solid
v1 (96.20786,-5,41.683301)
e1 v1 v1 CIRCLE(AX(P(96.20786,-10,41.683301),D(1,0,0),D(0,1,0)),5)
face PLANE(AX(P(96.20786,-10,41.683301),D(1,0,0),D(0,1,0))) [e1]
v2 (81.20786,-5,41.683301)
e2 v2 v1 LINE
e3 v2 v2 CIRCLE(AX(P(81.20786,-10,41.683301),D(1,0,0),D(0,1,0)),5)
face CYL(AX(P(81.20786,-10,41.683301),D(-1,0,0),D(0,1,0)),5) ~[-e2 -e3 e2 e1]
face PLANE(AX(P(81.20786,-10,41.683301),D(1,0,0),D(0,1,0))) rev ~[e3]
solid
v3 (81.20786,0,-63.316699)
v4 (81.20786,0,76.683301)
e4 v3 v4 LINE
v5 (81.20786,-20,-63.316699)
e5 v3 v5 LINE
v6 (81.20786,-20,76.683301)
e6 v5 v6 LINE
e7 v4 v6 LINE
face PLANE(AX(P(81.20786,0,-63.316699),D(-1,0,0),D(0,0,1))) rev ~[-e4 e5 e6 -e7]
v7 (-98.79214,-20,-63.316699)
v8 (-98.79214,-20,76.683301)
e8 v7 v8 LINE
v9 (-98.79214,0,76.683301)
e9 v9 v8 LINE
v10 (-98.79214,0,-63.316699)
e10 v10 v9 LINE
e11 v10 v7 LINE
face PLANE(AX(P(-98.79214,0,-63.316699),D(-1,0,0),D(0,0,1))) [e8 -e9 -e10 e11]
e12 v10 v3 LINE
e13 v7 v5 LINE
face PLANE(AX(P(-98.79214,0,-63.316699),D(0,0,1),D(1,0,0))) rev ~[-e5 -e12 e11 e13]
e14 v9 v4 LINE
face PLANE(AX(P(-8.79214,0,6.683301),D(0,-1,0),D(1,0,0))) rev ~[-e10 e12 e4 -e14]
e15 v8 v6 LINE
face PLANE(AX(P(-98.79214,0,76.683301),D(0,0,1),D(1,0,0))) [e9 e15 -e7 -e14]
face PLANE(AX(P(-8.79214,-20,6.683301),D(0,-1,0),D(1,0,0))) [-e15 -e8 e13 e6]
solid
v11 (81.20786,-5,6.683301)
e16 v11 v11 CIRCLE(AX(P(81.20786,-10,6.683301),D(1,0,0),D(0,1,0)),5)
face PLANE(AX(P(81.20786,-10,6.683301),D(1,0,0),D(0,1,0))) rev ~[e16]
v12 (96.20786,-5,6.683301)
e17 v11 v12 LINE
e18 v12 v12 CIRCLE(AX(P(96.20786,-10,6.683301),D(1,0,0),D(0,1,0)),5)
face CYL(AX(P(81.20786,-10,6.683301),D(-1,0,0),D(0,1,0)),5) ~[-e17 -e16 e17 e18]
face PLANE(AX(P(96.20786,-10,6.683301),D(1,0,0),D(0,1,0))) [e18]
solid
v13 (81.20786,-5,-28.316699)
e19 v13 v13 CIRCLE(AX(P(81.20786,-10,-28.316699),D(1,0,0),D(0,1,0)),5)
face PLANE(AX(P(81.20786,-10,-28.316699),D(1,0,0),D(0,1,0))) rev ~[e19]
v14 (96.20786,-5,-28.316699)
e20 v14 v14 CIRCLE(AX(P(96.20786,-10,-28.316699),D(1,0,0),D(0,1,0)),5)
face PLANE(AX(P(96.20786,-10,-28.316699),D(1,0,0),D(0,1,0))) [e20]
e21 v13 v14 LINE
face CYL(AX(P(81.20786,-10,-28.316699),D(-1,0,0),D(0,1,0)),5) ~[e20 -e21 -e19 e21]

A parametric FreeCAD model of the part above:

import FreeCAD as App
import Part
import Sketcher


def add_polygon(sketch, points):
    """Adds a closed chain of lines whose ends are joined by coincident constraints."""
    first, n = sketch.GeometryCount, len(points)
    for a, b in zip(points, points[1:] + points[:1]):
        sketch.addGeometry(Part.LineSegment(App.Vector(*a, 0), App.Vector(*b, 0)), False)
    for i in range(n):
        sketch.addConstraint(Sketcher.Constraint("Coincident", first + i, 2, first + (i + 1) % n, 1))

doc = App.newDocument("Part")
body = doc.addObject("PartDesign::Body", "Body")

# Sketch on XZ plane
sketch1 = body.newObject("Sketcher::SketchObject", "Sketch")
sketch1.AttachmentSupport = (doc.getObject("XZ_Plane"), [""])
sketch1.MapMode = "FlatFace"
add_polygon(sketch1, [(-99, 77), (-99, -63), (81, -63), (81, 77)])  # lines 0-3
sketch1.addConstraint([
    Sketcher.Constraint("Vertical", 0),
    Sketcher.Constraint("Horizontal", 1),
    Sketcher.Constraint("Vertical", 2),
    Sketcher.Constraint("Horizontal", 3),
    Sketcher.Constraint("DistanceX", 1, 1, 1, 2, 180.0),
    Sketcher.Constraint("DistanceY", 0, 2, 0, 1, 140.0),
    Sketcher.Constraint("DistanceY", 0, 2, -1, 1, 63.316699),
    Sketcher.Constraint("DistanceX", 0, 2, -1, 1, 98.79214),
])
pad1 = body.newObject("PartDesign::Pad", "Pad")
pad1.Profile = sketch1
pad1.Length = 20
body2 = doc.addObject("PartDesign::Body", "Body001")
body2.AllowCompound = True

# Sketch on YZ plane
sketch2 = body2.newObject("Sketcher::SketchObject", "Sketch001")
sketch2.AttachmentSupport = (doc.getObject("YZ_Plane001"), [""])
sketch2.MapMode = "FlatFace"
sketch2.AttachmentOffset = App.Placement(App.Vector(0, 0, 81.20786), App.Rotation())
sketch2.addGeometry([
    Part.Circle(App.Vector(-10, 42, 0), App.Vector(0, 0, 1), 5),
    Part.Circle(App.Vector(-10, 7, 0), App.Vector(0, 0, 1), 5),
    Part.Circle(App.Vector(-10, -28, 0), App.Vector(0, 0, 1), 5),
], False)
sketch2.addConstraint([
    Sketcher.Constraint("Equal", 0, 1),
    Sketcher.Constraint("Equal", 1, 2),
    Sketcher.Constraint("Vertical", 0, 3, 1, 3),
    Sketcher.Constraint("Vertical", 1, 3, 2, 3),
    Sketcher.Constraint("Diameter", 0, 10.0),
    Sketcher.Constraint("DistanceX", 0, 3, -1, 1, 10.0),
    Sketcher.Constraint("DistanceY", 1, 3, 0, 3, 35.0),
    Sketcher.Constraint("DistanceY", 2, 3, 1, 3, 35.0),
    Sketcher.Constraint("DistanceY", -1, 1, 0, 3, 41.683301),
])
pad2 = body2.newObject("PartDesign::Pad", "Pad001")
pad2.Profile = sketch2
pad2.Length = 15

doc.recompute()
